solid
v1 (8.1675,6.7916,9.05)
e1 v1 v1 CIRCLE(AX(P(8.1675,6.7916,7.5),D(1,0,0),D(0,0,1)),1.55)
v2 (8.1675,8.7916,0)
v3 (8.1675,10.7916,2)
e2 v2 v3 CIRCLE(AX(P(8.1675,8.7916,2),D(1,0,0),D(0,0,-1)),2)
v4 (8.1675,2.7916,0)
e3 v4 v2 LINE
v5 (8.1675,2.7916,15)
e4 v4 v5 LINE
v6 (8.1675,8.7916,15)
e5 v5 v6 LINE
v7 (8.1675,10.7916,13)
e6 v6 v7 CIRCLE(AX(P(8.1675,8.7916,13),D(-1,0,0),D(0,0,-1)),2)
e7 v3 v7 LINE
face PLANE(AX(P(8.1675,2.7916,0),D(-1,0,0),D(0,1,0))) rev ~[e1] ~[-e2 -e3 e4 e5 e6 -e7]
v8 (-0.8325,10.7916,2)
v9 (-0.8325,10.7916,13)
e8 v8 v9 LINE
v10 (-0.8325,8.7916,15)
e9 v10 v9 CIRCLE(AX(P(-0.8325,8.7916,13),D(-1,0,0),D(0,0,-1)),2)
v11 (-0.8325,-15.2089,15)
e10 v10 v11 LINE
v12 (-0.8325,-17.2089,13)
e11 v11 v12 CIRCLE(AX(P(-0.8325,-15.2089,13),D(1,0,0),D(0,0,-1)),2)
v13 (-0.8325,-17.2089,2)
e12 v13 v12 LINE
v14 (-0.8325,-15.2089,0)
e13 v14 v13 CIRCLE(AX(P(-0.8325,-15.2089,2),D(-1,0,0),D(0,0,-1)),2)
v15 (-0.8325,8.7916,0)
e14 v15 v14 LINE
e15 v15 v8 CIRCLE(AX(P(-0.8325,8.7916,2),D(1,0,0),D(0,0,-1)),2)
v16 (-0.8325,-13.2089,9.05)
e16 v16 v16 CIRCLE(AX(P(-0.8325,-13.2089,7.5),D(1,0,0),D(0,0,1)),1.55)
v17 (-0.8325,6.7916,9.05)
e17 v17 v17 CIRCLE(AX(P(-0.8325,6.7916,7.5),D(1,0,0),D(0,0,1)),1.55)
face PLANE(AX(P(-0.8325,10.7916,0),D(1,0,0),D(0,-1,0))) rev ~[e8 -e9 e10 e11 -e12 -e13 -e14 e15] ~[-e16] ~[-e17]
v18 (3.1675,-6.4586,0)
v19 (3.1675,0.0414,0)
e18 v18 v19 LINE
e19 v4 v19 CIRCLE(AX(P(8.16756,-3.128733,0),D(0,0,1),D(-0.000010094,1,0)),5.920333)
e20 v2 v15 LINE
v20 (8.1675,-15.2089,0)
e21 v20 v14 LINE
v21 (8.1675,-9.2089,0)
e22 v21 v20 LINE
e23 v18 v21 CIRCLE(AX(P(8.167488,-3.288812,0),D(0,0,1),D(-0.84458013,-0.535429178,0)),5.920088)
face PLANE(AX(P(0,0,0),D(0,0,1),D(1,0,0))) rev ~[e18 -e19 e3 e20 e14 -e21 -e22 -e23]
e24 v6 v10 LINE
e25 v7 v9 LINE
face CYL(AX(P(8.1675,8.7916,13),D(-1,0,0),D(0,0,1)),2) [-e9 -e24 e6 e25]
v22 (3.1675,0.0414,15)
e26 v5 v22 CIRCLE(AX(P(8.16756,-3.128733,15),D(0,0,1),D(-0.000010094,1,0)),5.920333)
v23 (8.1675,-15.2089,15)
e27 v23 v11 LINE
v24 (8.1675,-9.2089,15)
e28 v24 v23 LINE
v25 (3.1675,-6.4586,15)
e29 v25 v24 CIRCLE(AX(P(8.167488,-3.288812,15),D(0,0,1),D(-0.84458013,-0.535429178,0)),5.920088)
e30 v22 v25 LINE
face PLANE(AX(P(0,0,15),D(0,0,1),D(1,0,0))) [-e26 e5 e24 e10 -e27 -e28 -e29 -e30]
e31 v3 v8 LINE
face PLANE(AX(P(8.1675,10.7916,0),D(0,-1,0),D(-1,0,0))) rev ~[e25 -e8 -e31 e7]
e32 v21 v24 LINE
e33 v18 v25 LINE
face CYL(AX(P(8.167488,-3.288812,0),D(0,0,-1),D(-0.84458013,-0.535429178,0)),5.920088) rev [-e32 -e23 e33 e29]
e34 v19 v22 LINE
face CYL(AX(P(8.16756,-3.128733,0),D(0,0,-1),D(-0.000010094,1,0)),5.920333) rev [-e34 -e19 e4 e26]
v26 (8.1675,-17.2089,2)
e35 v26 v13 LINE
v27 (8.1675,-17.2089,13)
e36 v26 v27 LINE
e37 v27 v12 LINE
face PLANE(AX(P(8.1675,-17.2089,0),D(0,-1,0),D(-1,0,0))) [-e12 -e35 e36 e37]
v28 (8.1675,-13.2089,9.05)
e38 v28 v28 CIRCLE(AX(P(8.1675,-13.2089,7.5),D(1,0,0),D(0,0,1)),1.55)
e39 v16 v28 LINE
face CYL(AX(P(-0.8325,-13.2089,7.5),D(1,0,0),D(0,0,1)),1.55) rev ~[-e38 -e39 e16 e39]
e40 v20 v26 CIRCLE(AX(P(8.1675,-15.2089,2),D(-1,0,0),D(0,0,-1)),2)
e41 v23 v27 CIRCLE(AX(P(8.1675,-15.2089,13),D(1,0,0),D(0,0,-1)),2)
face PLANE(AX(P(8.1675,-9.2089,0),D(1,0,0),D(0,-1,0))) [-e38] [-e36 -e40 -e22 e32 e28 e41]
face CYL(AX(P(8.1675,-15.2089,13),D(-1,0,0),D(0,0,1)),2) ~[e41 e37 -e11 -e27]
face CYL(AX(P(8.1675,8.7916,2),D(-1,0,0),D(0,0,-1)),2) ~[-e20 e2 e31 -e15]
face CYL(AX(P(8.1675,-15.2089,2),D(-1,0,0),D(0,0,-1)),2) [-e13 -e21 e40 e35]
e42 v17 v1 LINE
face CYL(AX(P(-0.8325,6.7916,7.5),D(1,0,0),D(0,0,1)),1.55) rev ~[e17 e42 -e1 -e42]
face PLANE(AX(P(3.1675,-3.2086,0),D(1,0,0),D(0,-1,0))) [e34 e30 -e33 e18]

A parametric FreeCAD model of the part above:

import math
import FreeCAD as App
import Part
import Sketcher
Q = App.Units.Quantity


def edges_at(feature, points):
    """Names of the edges that pass closest to the given points."""
    edges = feature.Shape.Edges
    near = lambda p: min(range(len(edges)), key=lambda i: edges[i].distToShape(Part.Vertex(*p))[0])
    return sorted({f"Edge{near(p) + 1}" for p in points})

doc = App.newDocument("Part")
params = doc.addObject("Spreadsheet::Sheet", "Params")
for row, (alias, value) in enumerate([
    ("sketch1_width", "9 mm"),
    ("sketch1_height", "8 mm"),
    ("sketch1_radius", "5.92 mm"),
    ("sketch1_height2", "6.5 mm"),
    ("pad1_length", "15 mm"),
    ("sketch2_diameter", "3.1 mm"),
    ("hole_diameter", "3.1 mm"),
    ("fillet_radius", "2 mm"),
], start=1):
    params.set(f"A{row}", alias)
    params.set(f"B{row}", "=" + value)
    params.setAlias(f"B{row}", alias)

body = doc.addObject("PartDesign::Body", "Body")

# Sketch on XY plane
sketch1 = doc.addObject("Sketcher::SketchObject", "Sketch")
body.addObject(sketch1)
sketch1.AttachmentSupport = (doc.XY_Plane, [""])
sketch1.MapMode = "FlatFace"
sketch1.addGeometry(Part.LineSegment(App.Vector(3.1675, -6.4586, 0), App.Vector(3.1675, 0.0414, 0)), False)
sketch1.addGeometry(Part.ArcOfCircle(Part.Circle(App.Vector(8.1675, -3.1285, 0), App.Vector(0, 0, 1), 5.9201), math.radians(90), math.radians(147.62612)), False)
sketch1.addGeometry(Part.LineSegment(App.Vector(8.1675, 2.7916, 0), App.Vector(8.1675, 10.7916, 0)), False)
sketch1.addGeometry(Part.LineSegment(App.Vector(8.1675, 10.7916, 0), App.Vector(-0.8325, 10.7916, 0)), False)
sketch1.addGeometry(Part.LineSegment(App.Vector(-0.8325, 10.7916, 0), App.Vector(-0.8325, -17.2089, 0)), False)
sketch1.addGeometry(Part.LineSegment(App.Vector(-0.8325, -17.2089, 0), App.Vector(8.1675, -17.2089, 0)), False)
sketch1.addGeometry(Part.LineSegment(App.Vector(8.1675, -17.2089, 0), App.Vector(8.1675, -9.2089, 0)), False)
sketch1.addGeometry(Part.ArcOfCircle(Part.Circle(App.Vector(8.1675, -3.2888, 0), App.Vector(0, 0, 1), 5.920104), math.radians(-147.626937), math.radians(-90)), False)
sketch1.addConstraint(Sketcher.Constraint("Coincident", 0, 2, 1, 2))
sketch1.addConstraint(Sketcher.Constraint("Coincident", 1, 1, 2, 1))
sketch1.addConstraint(Sketcher.Constraint("Coincident", 2, 2, 3, 1))
sketch1.addConstraint(Sketcher.Constraint("Coincident", 3, 2, 4, 1))
sketch1.addConstraint(Sketcher.Constraint("Coincident", 4, 2, 5, 1))
sketch1.addConstraint(Sketcher.Constraint("Coincident", 5, 2, 6, 1))
sketch1.addConstraint(Sketcher.Constraint("Coincident", 6, 2, 7, 2))
sketch1.addConstraint(Sketcher.Constraint("Coincident", 7, 1, 0, 1))
sketch1.addConstraint(Sketcher.Constraint("Vertical", 0))
sketch1.addConstraint(Sketcher.Constraint("Vertical", 2))
sketch1.addConstraint(Sketcher.Constraint("Horizontal", 3))
sketch1.addConstraint(Sketcher.Constraint("Vertical", 4))
sketch1.addConstraint(Sketcher.Constraint("Horizontal", 5))
sketch1.addConstraint(Sketcher.Constraint("Vertical", 6))
sketch1.addConstraint(Sketcher.Constraint("Equal", 1, 7))
sketch1.addConstraint(Sketcher.Constraint("Vertical", 1, 3, 7, 3))
sketch1.addConstraint(Sketcher.Constraint("Vertical", 7, 3, 1, 1))
sketch1.addConstraint(Sketcher.Constraint("Vertical", 2, 2, 5, 2))
sketch1.addConstraint(Sketcher.Constraint("Equal", 2, 6))
sketch1.addConstraint(Sketcher.Constraint("DistanceX", 3, 2, 3, 1, Q("9 mm")))
sketch1.addConstraint(Sketcher.Constraint("DistanceX", 3, 2, 0, 2, Q("4 mm")))
sketch1.addConstraint(Sketcher.Constraint("DistanceY", 2, 1, 2, 2, Q("8 mm")))
sketch1.addConstraint(Sketcher.Constraint("Radius", 1, Q("5.92 mm")))
sketch1.addConstraint(Sketcher.Constraint("DistanceY", 0, 1, 0, 2, Q("6.5 mm")))
sketch1.addConstraint(Sketcher.Constraint("DistanceY", 4, 2, -1, 1, Q("17.209 mm")))
sketch1.addConstraint(Sketcher.Constraint("DistanceX", -1, 1, 1, 3, Q("8.1675 mm")))
sketch1.setExpression("Constraints[19]", "Params.sketch1_width")
sketch1.setExpression("Constraints[21]", "Params.sketch1_height")
sketch1.setExpression("Constraints[22]", "Params.sketch1_radius")
sketch1.setExpression("Constraints[23]", "Params.sketch1_height2")
pad1 = doc.addObject("PartDesign::Pad", "Pad")
body.addObject(pad1)
pad1.Profile = sketch1
pad1.setExpression("Length", "Params.pad1_length")

# Sketch on YZ plane
sketch2 = doc.addObject("Sketcher::SketchObject", "Sketch001")
body.addObject(sketch2)
sketch2.AttachmentSupport = (doc.YZ_Plane, [""])
sketch2.MapMode = "FlatFace"
sketch2.AttachmentOffset = App.Placement(App.Vector(0, 0, -0.8325), App.Rotation())
sketch2.addGeometry(Part.Circle(App.Vector(-13.2089, 7.5, 0), App.Vector(0, 0, 1), 1.55), False)
sketch2.addGeometry(Part.Circle(App.Vector(6.7916, 7.5, 0), App.Vector(0, 0, 1), 1.55), False)
sketch2.addConstraint(Sketcher.Constraint("Equal", 0, 1))
sketch2.addConstraint(Sketcher.Constraint("Horizontal", 0, 3, 1, 3))
sketch2.addConstraint(Sketcher.Constraint("Diameter", 0, Q("3.1 mm")))
sketch2.addConstraint(Sketcher.Constraint("DistanceY", -1, 1, 0, 3, Q("7.5 mm")))
sketch2.addConstraint(Sketcher.Constraint("DistanceX", 0, 3, -1, 1, Q("13.209 mm")))
sketch2.addConstraint(Sketcher.Constraint("DistanceX", -1, 1, 1, 3, Q("6.7916 mm")))
sketch2.setExpression("Constraints[2]", "Params.sketch2_diameter")
doc.recompute()
hole = doc.addObject("PartDesign::Hole", "Hole")
body.addObject(hole)
hole.Profile = sketch2
hole.ThreadType = "None"
hole.setExpression("Diameter", "Params.hole_diameter")
hole.DepthType = "ThroughAll"
hole.Reversed = True
doc.recompute()

fillet = doc.addObject("PartDesign::Fillet", "Fillet")
body.addObject(fillet)
fillet.Base = (hole, edges_at(hole, [
    (3.667, 10.792, 15),
    (3.667, 10.792, 0),
    (3.667, -17.209, 0),
    (3.667, -17.209, 15),
]))
fillet.setExpression("Radius", "Params.fillet_radius")

doc.recompute()
